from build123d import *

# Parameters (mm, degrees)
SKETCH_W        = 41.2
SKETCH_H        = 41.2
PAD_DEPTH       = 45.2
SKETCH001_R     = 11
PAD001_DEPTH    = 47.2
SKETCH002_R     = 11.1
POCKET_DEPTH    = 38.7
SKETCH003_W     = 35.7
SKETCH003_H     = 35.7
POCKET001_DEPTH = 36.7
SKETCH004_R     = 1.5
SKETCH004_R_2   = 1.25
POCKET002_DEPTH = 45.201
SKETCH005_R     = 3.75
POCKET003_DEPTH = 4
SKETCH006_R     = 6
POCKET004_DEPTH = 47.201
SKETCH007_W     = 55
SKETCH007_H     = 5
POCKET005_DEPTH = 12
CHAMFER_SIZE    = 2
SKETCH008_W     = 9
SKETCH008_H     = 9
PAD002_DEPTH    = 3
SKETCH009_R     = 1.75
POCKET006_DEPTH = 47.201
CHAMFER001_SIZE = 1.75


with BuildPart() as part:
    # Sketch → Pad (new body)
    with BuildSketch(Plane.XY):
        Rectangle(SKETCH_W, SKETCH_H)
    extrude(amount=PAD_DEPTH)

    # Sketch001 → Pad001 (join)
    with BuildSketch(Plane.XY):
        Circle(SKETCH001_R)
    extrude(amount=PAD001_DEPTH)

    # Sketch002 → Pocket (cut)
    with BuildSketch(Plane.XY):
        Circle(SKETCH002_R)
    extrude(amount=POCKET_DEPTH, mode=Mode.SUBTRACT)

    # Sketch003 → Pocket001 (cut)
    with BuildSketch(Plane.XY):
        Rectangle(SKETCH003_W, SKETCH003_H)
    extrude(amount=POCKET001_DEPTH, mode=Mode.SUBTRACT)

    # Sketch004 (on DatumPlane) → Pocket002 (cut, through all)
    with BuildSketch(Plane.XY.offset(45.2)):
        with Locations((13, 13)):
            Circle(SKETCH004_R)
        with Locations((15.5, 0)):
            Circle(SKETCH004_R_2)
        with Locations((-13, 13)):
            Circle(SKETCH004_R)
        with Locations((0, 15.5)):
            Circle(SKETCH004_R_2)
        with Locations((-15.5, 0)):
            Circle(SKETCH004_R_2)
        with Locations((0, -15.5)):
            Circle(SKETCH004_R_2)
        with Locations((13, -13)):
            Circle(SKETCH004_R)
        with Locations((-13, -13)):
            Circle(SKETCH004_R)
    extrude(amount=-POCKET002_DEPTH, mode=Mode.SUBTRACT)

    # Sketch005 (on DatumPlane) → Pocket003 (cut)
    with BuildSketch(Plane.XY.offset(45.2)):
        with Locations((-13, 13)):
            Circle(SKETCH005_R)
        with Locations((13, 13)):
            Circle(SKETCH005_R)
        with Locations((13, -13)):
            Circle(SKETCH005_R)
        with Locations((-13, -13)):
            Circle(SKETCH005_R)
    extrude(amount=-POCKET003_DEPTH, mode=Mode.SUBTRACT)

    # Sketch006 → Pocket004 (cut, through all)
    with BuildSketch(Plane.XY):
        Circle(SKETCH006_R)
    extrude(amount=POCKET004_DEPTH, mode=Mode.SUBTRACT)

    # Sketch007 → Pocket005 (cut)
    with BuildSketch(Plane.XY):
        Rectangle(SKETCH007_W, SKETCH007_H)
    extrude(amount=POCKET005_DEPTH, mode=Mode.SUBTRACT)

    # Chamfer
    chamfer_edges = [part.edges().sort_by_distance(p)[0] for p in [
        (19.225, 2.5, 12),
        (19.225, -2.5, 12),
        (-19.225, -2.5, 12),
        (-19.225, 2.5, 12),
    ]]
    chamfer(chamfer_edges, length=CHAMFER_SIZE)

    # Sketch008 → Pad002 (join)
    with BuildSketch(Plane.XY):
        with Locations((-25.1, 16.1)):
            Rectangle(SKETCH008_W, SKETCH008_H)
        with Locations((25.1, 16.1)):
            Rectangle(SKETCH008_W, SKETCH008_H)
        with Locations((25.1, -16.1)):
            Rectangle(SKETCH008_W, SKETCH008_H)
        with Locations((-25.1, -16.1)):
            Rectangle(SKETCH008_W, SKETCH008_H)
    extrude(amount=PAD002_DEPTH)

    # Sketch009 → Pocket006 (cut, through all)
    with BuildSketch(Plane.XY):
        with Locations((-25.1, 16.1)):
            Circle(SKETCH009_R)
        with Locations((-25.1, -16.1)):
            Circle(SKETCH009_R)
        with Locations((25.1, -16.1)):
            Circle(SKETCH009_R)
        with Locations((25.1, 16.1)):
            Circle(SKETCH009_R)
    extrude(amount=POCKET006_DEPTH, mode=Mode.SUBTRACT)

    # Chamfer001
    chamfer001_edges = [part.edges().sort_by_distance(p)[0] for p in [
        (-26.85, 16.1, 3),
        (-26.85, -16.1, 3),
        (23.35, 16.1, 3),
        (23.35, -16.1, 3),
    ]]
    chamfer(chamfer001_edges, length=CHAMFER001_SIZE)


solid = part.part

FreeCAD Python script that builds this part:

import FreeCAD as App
import Part
import Sketcher
from FreeCAD import Vector
Q = App.Units.Quantity


def edges_at(feature, points):
    """Names of the edges that pass closest to the given points."""
    edges = feature.Shape.Edges
    near = lambda p: min(range(len(edges)), key=lambda i: edges[i].distToShape(Part.Vertex(*p))[0])
    return sorted({f"Edge{near(p) + 1}" for p in points})

doc = App.newDocument("Part")
params = doc.addObject("Spreadsheet::Sheet", "Params")
for row, (alias, value) in enumerate([
    ("sketch1_width", "41.2 mm"),
    ("pad1_length", "45.2 mm"),
    ("sketch2_diameter", "22 mm"),
    ("pad2_length", "47.2 mm"),
    ("sketch3_diameter", "22.2 mm"),
    ("pocket1_length", "38.7 mm"),
    ("sketch4_width", "35.7 mm"),
    ("pocket2_length", "36.7 mm"),
    ("sketch5_diameter", "3 mm"),
    ("sketch5_diameter2", "2.5 mm"),
    ("sketch6_diameter", "7.5 mm"),
    ("pocket4_length", "4 mm"),
    ("sketch7_diameter", "12 mm"),
    ("sketch8_width", "55 mm"),
    ("sketch8_height", "5 mm"),
    ("pocket6_length", "12 mm"),
    ("chamfer_size", "2 mm"),
    ("sketch9_width", "9 mm"),
    ("pad3_length", "3 mm"),
    ("sketch10_diameter", "3.5 mm"),
    ("chamfer2_size", "1.75 mm"),
], start=1):
    params.set(f"A{row}", alias)
    params.set(f"B{row}", "=" + value)
    params.setAlias(f"B{row}", alias)

body = doc.addObject("PartDesign::Body", "Body")

# Sketch on XY plane
sketch1 = body.newObject("Sketcher::SketchObject", "Sketch")
sketch1.AttachmentSupport = (doc.getObject("XY_Plane"), [""])
sketch1.MapMode = "FlatFace"
sketch1.addGeometry(Part.LineSegment(Vector(-20.6, 20.6, 0), Vector(-20.6, -20.6, 0)), False)
sketch1.addGeometry(Part.LineSegment(Vector(-20.6, -20.6, 0), Vector(20.6, -20.6, 0)), False)
sketch1.addGeometry(Part.LineSegment(Vector(20.6, -20.6, 0), Vector(20.6, 20.6, 0)), False)
sketch1.addGeometry(Part.LineSegment(Vector(20.6, 20.6, 0), Vector(-20.6, 20.6, 0)), False)
sketch1.addConstraint(Sketcher.Constraint("Coincident", 0, 2, 1, 1))
sketch1.addConstraint(Sketcher.Constraint("Coincident", 1, 2, 2, 1))
sketch1.addConstraint(Sketcher.Constraint("Coincident", 2, 2, 3, 1))
sketch1.addConstraint(Sketcher.Constraint("Coincident", 3, 2, 0, 1))
sketch1.addConstraint(Sketcher.Constraint("Vertical", 0))
sketch1.addConstraint(Sketcher.Constraint("Horizontal", 1))
sketch1.addConstraint(Sketcher.Constraint("Vertical", 2))
sketch1.addConstraint(Sketcher.Constraint("Horizontal", 3))
sketch1.addConstraint(Sketcher.Constraint("Symmetric", 0, 2, 2, 2, -1, 1))
sketch1.addConstraint(Sketcher.Constraint("Equal", 3, 0))
sketch1.addConstraint(Sketcher.Constraint("DistanceX", 1, 1, 1, 2, Q("41.2 mm")))
sketch1.setExpression("Constraints[10]", "Params.sketch1_width")
pad1 = body.newObject("PartDesign::Pad", "Pad")
pad1.Profile = sketch1
pad1.setExpression("Length", "Params.pad1_length")

# Sketch on XY plane
sketch2 = body.newObject("Sketcher::SketchObject", "Sketch001")
sketch2.AttachmentSupport = (doc.getObject("XY_Plane"), [""])
sketch2.MapMode = "FlatFace"
sketch2.addGeometry(Part.Circle(Vector(0, 0, 0), Vector(0, 0, 1), 11), False)
sketch2.addConstraint(Sketcher.Constraint("Coincident", 0, 3, -1, 1))
sketch2.addConstraint(Sketcher.Constraint("Diameter", 0, Q("22 mm")))
sketch2.setExpression("Constraints[1]", "Params.sketch2_diameter")
pad2 = body.newObject("PartDesign::Pad", "Pad001")
pad2.Profile = sketch2
pad2.setExpression("Length", "Params.pad2_length")

# Sketch on XY plane
sketch3 = body.newObject("Sketcher::SketchObject", "Sketch002")
sketch3.AttachmentSupport = (doc.getObject("XY_Plane"), [""])
sketch3.MapMode = "FlatFace"
sketch3.addGeometry(Part.Circle(Vector(0, 0, 0), Vector(0, 0, 1), 11.1), False)
sketch3.addConstraint(Sketcher.Constraint("Coincident", 0, 3, -1, 1))
sketch3.addConstraint(Sketcher.Constraint("Diameter", 0, Q("22.2 mm")))
sketch3.setExpression("Constraints[1]", "Params.sketch3_diameter")
pocket1 = body.newObject("PartDesign::Pocket", "Pocket")
pocket1.Profile = sketch3
pocket1.setExpression("Length", "Params.pocket1_length")
pocket1.Reversed = True

# Sketch on XY plane
sketch4 = body.newObject("Sketcher::SketchObject", "Sketch003")
sketch4.AttachmentSupport = (doc.getObject("XY_Plane"), [""])
sketch4.MapMode = "FlatFace"
sketch4.addGeometry(Part.LineSegment(Vector(-17.85, 17.85, 0), Vector(-17.85, -17.85, 0)), False)
sketch4.addGeometry(Part.LineSegment(Vector(-17.85, -17.85, 0), Vector(17.85, -17.85, 0)), False)
sketch4.addGeometry(Part.LineSegment(Vector(17.85, -17.85, 0), Vector(17.85, 17.85, 0)), False)
sketch4.addGeometry(Part.LineSegment(Vector(17.85, 17.85, 0), Vector(-17.85, 17.85, 0)), False)
sketch4.addConstraint(Sketcher.Constraint("Coincident", 0, 2, 1, 1))
sketch4.addConstraint(Sketcher.Constraint("Coincident", 1, 2, 2, 1))
sketch4.addConstraint(Sketcher.Constraint("Coincident", 2, 2, 3, 1))
sketch4.addConstraint(Sketcher.Constraint("Coincident", 3, 2, 0, 1))
sketch4.addConstraint(Sketcher.Constraint("Vertical", 0))
sketch4.addConstraint(Sketcher.Constraint("Horizontal", 1))
sketch4.addConstraint(Sketcher.Constraint("Vertical", 2))
sketch4.addConstraint(Sketcher.Constraint("Horizontal", 3))
sketch4.addConstraint(Sketcher.Constraint("Symmetric", 0, 2, 2, 2, -1, 1))
sketch4.addConstraint(Sketcher.Constraint("Equal", 3, 0))
sketch4.addConstraint(Sketcher.Constraint("DistanceX", 1, 1, 1, 2, Q("35.7 mm")))
sketch4.setExpression("Constraints[10]", "Params.sketch4_width")
pocket2 = body.newObject("PartDesign::Pocket", "Pocket001")
pocket2.Profile = sketch4
pocket2.setExpression("Length", "Params.pocket2_length")
pocket2.Reversed = True

# Sketch on XY plane
sketch5 = body.newObject("Sketcher::SketchObject", "Sketch004")
sketch5.AttachmentSupport = (doc.getObject("XY_Plane"), [""])
sketch5.MapMode = "FlatFace"
sketch5.AttachmentOffset = App.Placement(Vector(0, 0, 45.2), App.Rotation())
sketch5.addGeometry(Part.Circle(Vector(13, 13, 0), Vector(0, 0, 1), 1.5), False)
sketch5.addGeometry(Part.Circle(Vector(15.5, 0, 0), Vector(0, 0, 1), 1.25), False)
sketch5.addGeometry(Part.Circle(Vector(-13, 13, 0), Vector(0, 0, 1), 1.5), False)
sketch5.addGeometry(Part.Circle(Vector(0, 15.5, 0), Vector(0, 0, 1), 1.25), False)
sketch5.addGeometry(Part.Circle(Vector(-15.5, 0, 0), Vector(0, 0, 1), 1.25), False)
sketch5.addGeometry(Part.Circle(Vector(0, -15.5, 0), Vector(0, 0, 1), 1.25), False)
sketch5.addGeometry(Part.Circle(Vector(13, -13, 0), Vector(0, 0, 1), 1.5), False)
sketch5.addGeometry(Part.Circle(Vector(-13, -13, 0), Vector(0, 0, 1), 1.5), False)
sketch5.addConstraint(Sketcher.Constraint("Equal", 0, 2))
sketch5.addConstraint(Sketcher.Constraint("Equal", 1, 3))
sketch5.addConstraint(Sketcher.Constraint("Equal", 3, 4))
sketch5.addConstraint(Sketcher.Constraint("Equal", 4, 5))
sketch5.addConstraint(Sketcher.Constraint("Equal", 2, 6))
sketch5.addConstraint(Sketcher.Constraint("Equal", 6, 7))
sketch5.addConstraint(Sketcher.Constraint("Symmetric", 1, 3, 4, 3, -1, 1))
sketch5.addConstraint(Sketcher.Constraint("Symmetric", 3, 3, 5, 3, -1, 1))
sketch5.addConstraint(Sketcher.Constraint("Symmetric", 2, 3, 6, 3, -1, 1))
sketch5.addConstraint(Sketcher.Constraint("Symmetric", 0, 3, 7, 3, -1, 1))
sketch5.addConstraint(Sketcher.Constraint("Symmetric", 0, 3, 2, 3, -2))
sketch5.addConstraint(Sketcher.Constraint("PointOnObject", 1, 3, -1))
sketch5.addConstraint(Sketcher.Constraint("PointOnObject", 3, 3, -2))
sketch5.addConstraint(Sketcher.Constraint("Diameter", 0, Q("3 mm")))
sketch5.addConstraint(Sketcher.Constraint("Diameter", 1, Q("2.5 mm")))
sketch5.addConstraint(Sketcher.Constraint("DistanceX", -1, 1, 0, 3, Q("13 mm")))
sketch5.addConstraint(Sketcher.Constraint("DistanceY", -1, 1, 0, 3, Q("13 mm")))
sketch5.addConstraint(Sketcher.Constraint("DistanceX", 4, 3, 1, 3, Q("31 mm")))
sketch5.addConstraint(Sketcher.Constraint("DistanceY", 5, 3, 3, 3, Q("31 mm")))
sketch5.setExpression("Constraints[13]", "Params.sketch5_diameter")
sketch5.setExpression("Constraints[14]", "Params.sketch5_diameter2")
pocket3 = body.newObject("PartDesign::Pocket", "Pocket002")
pocket3.Profile = sketch5
pocket3.Type = "ThroughAll"

# Sketch on XY plane
sketch6 = body.newObject("Sketcher::SketchObject", "Sketch005")
sketch6.AttachmentSupport = (doc.getObject("XY_Plane"), [""])
sketch6.MapMode = "FlatFace"
sketch6.AttachmentOffset = App.Placement(Vector(0, 0, 45.2), App.Rotation())
sketch6.addGeometry(Part.Circle(Vector(-13, 13, 0), Vector(0, 0, 1), 3.75), False)
sketch6.addGeometry(Part.Circle(Vector(13, 13, 0), Vector(0, 0, 1), 3.75), False)
sketch6.addGeometry(Part.Circle(Vector(13, -13, 0), Vector(0, 0, 1), 3.75), False)
sketch6.addGeometry(Part.Circle(Vector(-13, -13, 0), Vector(0, 0, 1), 3.75), False)
sketch6.addConstraint(Sketcher.Constraint("Equal", 0, 1))
sketch6.addConstraint(Sketcher.Constraint("Equal", 1, 2))
sketch6.addConstraint(Sketcher.Constraint("Equal", 2, 3))
sketch6.addConstraint(Sketcher.Constraint("Symmetric", 0, 3, 2, 3, -1, 1))
sketch6.addConstraint(Sketcher.Constraint("Symmetric", 1, 3, 3, 3, -1, 1))
sketch6.addConstraint(Sketcher.Constraint("Symmetric", 0, 3, 1, 3, -2))
sketch6.addConstraint(Sketcher.Constraint("Diameter", 0, Q("7.5 mm")))
sketch6.addConstraint(Sketcher.Constraint("DistanceX", 0, 3, -1, 1, Q("13 mm")))
sketch6.addConstraint(Sketcher.Constraint("DistanceY", -1, 1, 0, 3, Q("13 mm")))
sketch6.setExpression("Constraints[6]", "Params.sketch6_diameter")
pocket4 = body.newObject("PartDesign::Pocket", "Pocket003")
pocket4.Profile = sketch6
pocket4.setExpression("Length", "Params.pocket4_length")

# Sketch on XY plane
sketch7 = body.newObject("Sketcher::SketchObject", "Sketch006")
sketch7.AttachmentSupport = (doc.getObject("XY_Plane"), [""])
sketch7.MapMode = "FlatFace"
sketch7.addGeometry(Part.Circle(Vector(0, 0, 0), Vector(0, 0, 1), 6), False)
sketch7.addConstraint(Sketcher.Constraint("Coincident", 0, 3, -1, 1))
sketch7.addConstraint(Sketcher.Constraint("Diameter", 0, Q("12 mm")))
sketch7.setExpression("Constraints[1]", "Params.sketch7_diameter")
pocket5 = body.newObject("PartDesign::Pocket", "Pocket004")
pocket5.Profile = sketch7
pocket5.Type = "ThroughAll"
pocket5.Reversed = True

# Sketch on XY plane
sketch8 = body.newObject("Sketcher::SketchObject", "Sketch007")
sketch8.AttachmentSupport = (doc.getObject("XY_Plane"), [""])
sketch8.MapMode = "FlatFace"
sketch8.addGeometry(Part.LineSegment(Vector(-27.5, 2.5, 0), Vector(-27.5, -2.5, 0)), False)
sketch8.addGeometry(Part.LineSegment(Vector(-27.5, -2.5, 0), Vector(27.5, -2.5, 0)), False)
sketch8.addGeometry(Part.LineSegment(Vector(27.5, -2.5, 0), Vector(27.5, 2.5, 0)), False)
sketch8.addGeometry(Part.LineSegment(Vector(27.5, 2.5, 0), Vector(-27.5, 2.5, 0)), False)
sketch8.addConstraint(Sketcher.Constraint("Coincident", 0, 2, 1, 1))
sketch8.addConstraint(Sketcher.Constraint("Coincident", 1, 2, 2, 1))
sketch8.addConstraint(Sketcher.Constraint("Coincident", 2, 2, 3, 1))
sketch8.addConstraint(Sketcher.Constraint("Coincident", 3, 2, 0, 1))
sketch8.addConstraint(Sketcher.Constraint("Vertical", 0))
sketch8.addConstraint(Sketcher.Constraint("Horizontal", 1))
sketch8.addConstraint(Sketcher.Constraint("Vertical", 2))
sketch8.addConstraint(Sketcher.Constraint("Horizontal", 3))
sketch8.addConstraint(Sketcher.Constraint("Symmetric", 0, 2, 2, 2, -1, 1))
sketch8.addConstraint(Sketcher.Constraint("DistanceX", 1, 1, 1, 2, Q("55 mm")))
sketch8.addConstraint(Sketcher.Constraint("DistanceY", 0, 2, 0, 1, Q("5 mm")))
sketch8.setExpression("Constraints[9]", "Params.sketch8_width")
sketch8.setExpression("Constraints[10]", "Params.sketch8_height")
pocket6 = body.newObject("PartDesign::Pocket", "Pocket005")
pocket6.Profile = sketch8
pocket6.setExpression("Length", "Params.pocket6_length")
pocket6.Reversed = True
doc.recompute()

chamfer = body.newObject("PartDesign::Chamfer", "Chamfer")
chamfer.Base = (pocket6, edges_at(pocket6, [
    (19.225, 2.5, 12),
    (19.225, -2.5, 12),
    (-19.225, -2.5, 12),
    (-19.225, 2.5, 12),
]))
chamfer.setExpression("Size", "Params.chamfer_size")

# Sketch on XY plane
sketch9 = body.newObject("Sketcher::SketchObject", "Sketch008")
sketch9.AttachmentSupport = (doc.getObject("XY_Plane"), [""])
sketch9.MapMode = "FlatFace"
sketch9.addGeometry(Part.LineSegment(Vector(-29.6, 20.6, 0), Vector(-29.6, 11.6, 0)), False)
sketch9.addGeometry(Part.LineSegment(Vector(-29.6, 11.6, 0), Vector(-20.6, 11.6, 0)), False)
sketch9.addGeometry(Part.LineSegment(Vector(-20.6, 11.6, 0), Vector(-20.6, 20.6, 0)), False)
sketch9.addGeometry(Part.LineSegment(Vector(-20.6, 20.6, 0), Vector(-29.6, 20.6, 0)), False)
sketch9.addGeometry(Part.LineSegment(Vector(20.6, 20.6, 0), Vector(20.6, 11.6, 0)), False)
sketch9.addGeometry(Part.LineSegment(Vector(20.6, 11.6, 0), Vector(29.6, 11.6, 0)), False)
sketch9.addGeometry(Part.LineSegment(Vector(29.6, 11.6, 0), Vector(29.6, 20.6, 0)), False)
sketch9.addGeometry(Part.LineSegment(Vector(29.6, 20.6, 0), Vector(20.6, 20.6, 0)), False)
sketch9.addGeometry(Part.LineSegment(Vector(20.6, -11.6, 0), Vector(20.6, -20.6, 0)), False)
sketch9.addGeometry(Part.LineSegment(Vector(20.6, -20.6, 0), Vector(29.6, -20.6, 0)), False)
sketch9.addGeometry(Part.LineSegment(Vector(29.6, -20.6, 0), Vector(29.6, -11.6, 0)), False)
sketch9.addGeometry(Part.LineSegment(Vector(29.6, -11.6, 0), Vector(20.6, -11.6, 0)), False)
sketch9.addGeometry(Part.LineSegment(Vector(-29.6, -11.6, 0), Vector(-29.6, -20.6, 0)), False)
sketch9.addGeometry(Part.LineSegment(Vector(-29.6, -20.6, 0), Vector(-20.6, -20.6, 0)), False)
sketch9.addGeometry(Part.LineSegment(Vector(-20.6, -20.6, 0), Vector(-20.6, -11.6, 0)), False)
sketch9.addGeometry(Part.LineSegment(Vector(-20.6, -11.6, 0), Vector(-29.6, -11.6, 0)), False)
sketch9.addConstraint(Sketcher.Constraint("Coincident", 0, 2, 1, 1))
sketch9.addConstraint(Sketcher.Constraint("Coincident", 1, 2, 2, 1))
sketch9.addConstraint(Sketcher.Constraint("Coincident", 2, 2, 3, 1))
sketch9.addConstraint(Sketcher.Constraint("Coincident", 3, 2, 0, 1))
sketch9.addConstraint(Sketcher.Constraint("Coincident", 4, 2, 5, 1))
sketch9.addConstraint(Sketcher.Constraint("Coincident", 5, 2, 6, 1))
sketch9.addConstraint(Sketcher.Constraint("Coincident", 6, 2, 7, 1))
sketch9.addConstraint(Sketcher.Constraint("Coincident", 7, 2, 4, 1))
sketch9.addConstraint(Sketcher.Constraint("Coincident", 8, 2, 9, 1))
sketch9.addConstraint(Sketcher.Constraint("Coincident", 9, 2, 10, 1))
sketch9.addConstraint(Sketcher.Constraint("Coincident", 10, 2, 11, 1))
sketch9.addConstraint(Sketcher.Constraint("Coincident", 11, 2, 8, 1))
sketch9.addConstraint(Sketcher.Constraint("Coincident", 12, 2, 13, 1))
sketch9.addConstraint(Sketcher.Constraint("Coincident", 13, 2, 14, 1))
sketch9.addConstraint(Sketcher.Constraint("Coincident", 14, 2, 15, 1))
sketch9.addConstraint(Sketcher.Constraint("Coincident", 15, 2, 12, 1))
sketch9.addConstraint(Sketcher.Constraint("Vertical", 0))
sketch9.addConstraint(Sketcher.Constraint("Horizontal", 1))
sketch9.addConstraint(Sketcher.Constraint("Vertical", 2))
sketch9.addConstraint(Sketcher.Constraint("Horizontal", 3))
sketch9.addConstraint(Sketcher.Constraint("Vertical", 4))
sketch9.addConstraint(Sketcher.Constraint("Horizontal", 5))
sketch9.addConstraint(Sketcher.Constraint("Vertical", 6))
sketch9.addConstraint(Sketcher.Constraint("Horizontal", 7))
sketch9.addConstraint(Sketcher.Constraint("Vertical", 8))
sketch9.addConstraint(Sketcher.Constraint("Horizontal", 9))
sketch9.addConstraint(Sketcher.Constraint("Vertical", 10))
sketch9.addConstraint(Sketcher.Constraint("Horizontal", 11))
sketch9.addConstraint(Sketcher.Constraint("Vertical", 12))
sketch9.addConstraint(Sketcher.Constraint("Horizontal", 13))
sketch9.addConstraint(Sketcher.Constraint("Vertical", 14))
sketch9.addConstraint(Sketcher.Constraint("Horizontal", 15))
sketch9.addConstraint(Sketcher.Constraint("Symmetric", 2, 2, 8, 2, -1, 1))
sketch9.addConstraint(Sketcher.Constraint("Symmetric", 0, 2, 10, 2, -1, 1))
sketch9.addConstraint(Sketcher.Constraint("Symmetric", 6, 2, 12, 2, -1, 1))
sketch9.addConstraint(Sketcher.Constraint("Symmetric", 4, 2, 14, 2, -1, 1))
sketch9.addConstraint(Sketcher.Constraint("Symmetric", 1, 2, 4, 2, -2))
sketch9.addConstraint(Sketcher.Constraint("Symmetric", 3, 2, 6, 2, -2))
sketch9.addConstraint(Sketcher.Constraint("Equal", 15, 0))
sketch9.addConstraint(Sketcher.Constraint("DistanceX", 1, 1, 1, 2, Q("9 mm")))
sketch9.addConstraint(Sketcher.Constraint("DistanceX", 0, 2, -1, 1, Q("29.6 mm")))
sketch9.addConstraint(Sketcher.Constraint("DistanceY", -1, 1, 0, 2, Q("11.6 mm")))
sketch9.setExpression("Constraints[39]", "Params.sketch9_width")
pad3 = body.newObject("PartDesign::Pad", "Pad002")
pad3.Profile = sketch9
pad3.setExpression("Length", "Params.pad3_length")

# Sketch on XY plane
sketch10 = body.newObject("Sketcher::SketchObject", "Sketch009")
sketch10.AttachmentSupport = (doc.getObject("XY_Plane"), [""])
sketch10.MapMode = "FlatFace"
sketch10.addGeometry(Part.Circle(Vector(-25.1, 16.1, 0), Vector(0, 0, 1), 1.75), False)
sketch10.addGeometry(Part.Circle(Vector(-25.1, -16.1, 0), Vector(0, 0, 1), 1.75), False)
sketch10.addGeometry(Part.Circle(Vector(25.1, -16.1, 0), Vector(0, 0, 1), 1.75), False)
sketch10.addGeometry(Part.Circle(Vector(25.1, 16.1, 0), Vector(0, 0, 1), 1.75), False)
sketch10.addConstraint(Sketcher.Constraint("Equal", 0, 1))
sketch10.addConstraint(Sketcher.Constraint("Equal", 1, 2))
sketch10.addConstraint(Sketcher.Constraint("Equal", 2, 3))
sketch10.addConstraint(Sketcher.Constraint("Symmetric", 0, 3, 2, 3, -1, 1))
sketch10.addConstraint(Sketcher.Constraint("Symmetric", 1, 3, 3, 3, -1, 1))
sketch10.addConstraint(Sketcher.Constraint("Symmetric", 1, 3, 2, 3, -2))
sketch10.addConstraint(Sketcher.Constraint("Diameter", 0, Q("3.5 mm")))
sketch10.addConstraint(Sketcher.Constraint("DistanceX", 0, 3, -1, 1, Q("25.1 mm")))
sketch10.addConstraint(Sketcher.Constraint("DistanceY", -1, 1, 0, 3, Q("16.1 mm")))
sketch10.setExpression("Constraints[6]", "Params.sketch10_diameter")
pocket7 = body.newObject("PartDesign::Pocket", "Pocket006")
pocket7.Profile = sketch10
pocket7.Type = "ThroughAll"
pocket7.Reversed = True
doc.recompute()

chamfer2 = body.newObject("PartDesign::Chamfer", "Chamfer001")
chamfer2.Base = (pocket7, edges_at(pocket7, [
    (-26.85, 16.1, 3),
    (-26.85, -16.1, 3),
    (23.35, 16.1, 3),
    (23.35, -16.1, 3),
]))
chamfer2.setExpression("Size", "Params.chamfer2_size")

doc.recompute()
